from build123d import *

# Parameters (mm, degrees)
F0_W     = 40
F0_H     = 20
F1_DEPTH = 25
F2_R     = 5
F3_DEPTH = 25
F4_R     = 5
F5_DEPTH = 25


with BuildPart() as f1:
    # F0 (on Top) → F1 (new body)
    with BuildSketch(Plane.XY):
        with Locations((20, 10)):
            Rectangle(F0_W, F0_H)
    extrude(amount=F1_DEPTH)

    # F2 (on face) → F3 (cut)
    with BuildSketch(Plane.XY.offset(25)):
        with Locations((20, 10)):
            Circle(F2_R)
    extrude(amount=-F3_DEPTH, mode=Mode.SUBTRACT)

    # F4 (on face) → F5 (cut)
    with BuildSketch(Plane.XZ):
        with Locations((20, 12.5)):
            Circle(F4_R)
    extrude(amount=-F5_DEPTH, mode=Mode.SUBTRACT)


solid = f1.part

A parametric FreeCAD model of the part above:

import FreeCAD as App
import Part
import Sketcher
Q = App.Units.Quantity

doc = App.newDocument("Part")
body = doc.addObject("PartDesign::Body", "Body")

# Sketch on XY plane
sketch1 = doc.addObject("Sketcher::SketchObject", "Sketch")
body.addObject(sketch1)
sketch1.AttachmentSupport = (doc.XY_Plane, [""])
sketch1.MapMode = "FlatFace"
sketch1.addGeometry(Part.LineSegment(App.Vector(0, 20, 0), App.Vector(0, 0, 0)), False)
sketch1.addGeometry(Part.LineSegment(App.Vector(0, 0, 0), App.Vector(40, 0, 0)), False)
sketch1.addGeometry(Part.LineSegment(App.Vector(40, 0, 0), App.Vector(40, 20, 0)), False)
sketch1.addGeometry(Part.LineSegment(App.Vector(40, 20, 0), App.Vector(0, 20, 0)), False)
sketch1.addConstraint(Sketcher.Constraint("Coincident", 0, 2, 1, 1))
sketch1.addConstraint(Sketcher.Constraint("Coincident", 1, 2, 2, 1))
sketch1.addConstraint(Sketcher.Constraint("Coincident", 2, 2, 3, 1))
sketch1.addConstraint(Sketcher.Constraint("Coincident", 3, 2, 0, 1))
sketch1.addConstraint(Sketcher.Constraint("Vertical", 0))
sketch1.addConstraint(Sketcher.Constraint("Horizontal", 1))
sketch1.addConstraint(Sketcher.Constraint("Vertical", 2))
sketch1.addConstraint(Sketcher.Constraint("Horizontal", 3))
sketch1.addConstraint(Sketcher.Constraint("Coincident", 0, 2, -1, 1))
sketch1.addConstraint(Sketcher.Constraint("DistanceX", 1, 1, 1, 2, Q("40 mm")))
sketch1.addConstraint(Sketcher.Constraint("DistanceY", 0, 2, 0, 1, Q("20 mm")))
pad1 = doc.addObject("PartDesign::Pad", "Pad")
body.addObject(pad1)
pad1.Profile = sketch1
pad1.Length = 25

# Sketch on XY plane
sketch2 = doc.addObject("Sketcher::SketchObject", "Sketch001")
body.addObject(sketch2)
sketch2.AttachmentSupport = (doc.XY_Plane, [""])
sketch2.MapMode = "FlatFace"
sketch2.AttachmentOffset = App.Placement(App.Vector(0, 0, 25), App.Rotation())
sketch2.addGeometry(Part.Circle(App.Vector(20, 10, 0), App.Vector(0, 0, 1), 5), False)
sketch2.addConstraint(Sketcher.Constraint("Diameter", 0, Q("10 mm")))
sketch2.addConstraint(Sketcher.Constraint("DistanceX", -1, 1, 0, 3, Q("20 mm")))
sketch2.addConstraint(Sketcher.Constraint("DistanceY", -1, 1, 0, 3, Q("10 mm")))
pocket1 = doc.addObject("PartDesign::Pocket", "Pocket")
body.addObject(pocket1)
pocket1.Profile = sketch2
pocket1.Length = 25

# Sketch on XZ plane
sketch3 = doc.addObject("Sketcher::SketchObject", "Sketch002")
body.addObject(sketch3)
sketch3.AttachmentSupport = (doc.XZ_Plane, [""])
sketch3.MapMode = "FlatFace"
sketch3.addGeometry(Part.Circle(App.Vector(20, 12, 0), App.Vector(0, 0, 1), 5), False)
sketch3.addConstraint(Sketcher.Constraint("Diameter", 0, Q("10 mm")))
sketch3.addConstraint(Sketcher.Constraint("DistanceX", -1, 1, 0, 3, Q("20 mm")))
sketch3.addConstraint(Sketcher.Constraint("DistanceY", -1, 1, 0, 3, Q("12.5 mm")))
pocket2 = doc.addObject("PartDesign::Pocket", "Pocket001")
body.addObject(pocket2)
pocket2.Profile = sketch3
pocket2.Length = 25

doc.recompute()
